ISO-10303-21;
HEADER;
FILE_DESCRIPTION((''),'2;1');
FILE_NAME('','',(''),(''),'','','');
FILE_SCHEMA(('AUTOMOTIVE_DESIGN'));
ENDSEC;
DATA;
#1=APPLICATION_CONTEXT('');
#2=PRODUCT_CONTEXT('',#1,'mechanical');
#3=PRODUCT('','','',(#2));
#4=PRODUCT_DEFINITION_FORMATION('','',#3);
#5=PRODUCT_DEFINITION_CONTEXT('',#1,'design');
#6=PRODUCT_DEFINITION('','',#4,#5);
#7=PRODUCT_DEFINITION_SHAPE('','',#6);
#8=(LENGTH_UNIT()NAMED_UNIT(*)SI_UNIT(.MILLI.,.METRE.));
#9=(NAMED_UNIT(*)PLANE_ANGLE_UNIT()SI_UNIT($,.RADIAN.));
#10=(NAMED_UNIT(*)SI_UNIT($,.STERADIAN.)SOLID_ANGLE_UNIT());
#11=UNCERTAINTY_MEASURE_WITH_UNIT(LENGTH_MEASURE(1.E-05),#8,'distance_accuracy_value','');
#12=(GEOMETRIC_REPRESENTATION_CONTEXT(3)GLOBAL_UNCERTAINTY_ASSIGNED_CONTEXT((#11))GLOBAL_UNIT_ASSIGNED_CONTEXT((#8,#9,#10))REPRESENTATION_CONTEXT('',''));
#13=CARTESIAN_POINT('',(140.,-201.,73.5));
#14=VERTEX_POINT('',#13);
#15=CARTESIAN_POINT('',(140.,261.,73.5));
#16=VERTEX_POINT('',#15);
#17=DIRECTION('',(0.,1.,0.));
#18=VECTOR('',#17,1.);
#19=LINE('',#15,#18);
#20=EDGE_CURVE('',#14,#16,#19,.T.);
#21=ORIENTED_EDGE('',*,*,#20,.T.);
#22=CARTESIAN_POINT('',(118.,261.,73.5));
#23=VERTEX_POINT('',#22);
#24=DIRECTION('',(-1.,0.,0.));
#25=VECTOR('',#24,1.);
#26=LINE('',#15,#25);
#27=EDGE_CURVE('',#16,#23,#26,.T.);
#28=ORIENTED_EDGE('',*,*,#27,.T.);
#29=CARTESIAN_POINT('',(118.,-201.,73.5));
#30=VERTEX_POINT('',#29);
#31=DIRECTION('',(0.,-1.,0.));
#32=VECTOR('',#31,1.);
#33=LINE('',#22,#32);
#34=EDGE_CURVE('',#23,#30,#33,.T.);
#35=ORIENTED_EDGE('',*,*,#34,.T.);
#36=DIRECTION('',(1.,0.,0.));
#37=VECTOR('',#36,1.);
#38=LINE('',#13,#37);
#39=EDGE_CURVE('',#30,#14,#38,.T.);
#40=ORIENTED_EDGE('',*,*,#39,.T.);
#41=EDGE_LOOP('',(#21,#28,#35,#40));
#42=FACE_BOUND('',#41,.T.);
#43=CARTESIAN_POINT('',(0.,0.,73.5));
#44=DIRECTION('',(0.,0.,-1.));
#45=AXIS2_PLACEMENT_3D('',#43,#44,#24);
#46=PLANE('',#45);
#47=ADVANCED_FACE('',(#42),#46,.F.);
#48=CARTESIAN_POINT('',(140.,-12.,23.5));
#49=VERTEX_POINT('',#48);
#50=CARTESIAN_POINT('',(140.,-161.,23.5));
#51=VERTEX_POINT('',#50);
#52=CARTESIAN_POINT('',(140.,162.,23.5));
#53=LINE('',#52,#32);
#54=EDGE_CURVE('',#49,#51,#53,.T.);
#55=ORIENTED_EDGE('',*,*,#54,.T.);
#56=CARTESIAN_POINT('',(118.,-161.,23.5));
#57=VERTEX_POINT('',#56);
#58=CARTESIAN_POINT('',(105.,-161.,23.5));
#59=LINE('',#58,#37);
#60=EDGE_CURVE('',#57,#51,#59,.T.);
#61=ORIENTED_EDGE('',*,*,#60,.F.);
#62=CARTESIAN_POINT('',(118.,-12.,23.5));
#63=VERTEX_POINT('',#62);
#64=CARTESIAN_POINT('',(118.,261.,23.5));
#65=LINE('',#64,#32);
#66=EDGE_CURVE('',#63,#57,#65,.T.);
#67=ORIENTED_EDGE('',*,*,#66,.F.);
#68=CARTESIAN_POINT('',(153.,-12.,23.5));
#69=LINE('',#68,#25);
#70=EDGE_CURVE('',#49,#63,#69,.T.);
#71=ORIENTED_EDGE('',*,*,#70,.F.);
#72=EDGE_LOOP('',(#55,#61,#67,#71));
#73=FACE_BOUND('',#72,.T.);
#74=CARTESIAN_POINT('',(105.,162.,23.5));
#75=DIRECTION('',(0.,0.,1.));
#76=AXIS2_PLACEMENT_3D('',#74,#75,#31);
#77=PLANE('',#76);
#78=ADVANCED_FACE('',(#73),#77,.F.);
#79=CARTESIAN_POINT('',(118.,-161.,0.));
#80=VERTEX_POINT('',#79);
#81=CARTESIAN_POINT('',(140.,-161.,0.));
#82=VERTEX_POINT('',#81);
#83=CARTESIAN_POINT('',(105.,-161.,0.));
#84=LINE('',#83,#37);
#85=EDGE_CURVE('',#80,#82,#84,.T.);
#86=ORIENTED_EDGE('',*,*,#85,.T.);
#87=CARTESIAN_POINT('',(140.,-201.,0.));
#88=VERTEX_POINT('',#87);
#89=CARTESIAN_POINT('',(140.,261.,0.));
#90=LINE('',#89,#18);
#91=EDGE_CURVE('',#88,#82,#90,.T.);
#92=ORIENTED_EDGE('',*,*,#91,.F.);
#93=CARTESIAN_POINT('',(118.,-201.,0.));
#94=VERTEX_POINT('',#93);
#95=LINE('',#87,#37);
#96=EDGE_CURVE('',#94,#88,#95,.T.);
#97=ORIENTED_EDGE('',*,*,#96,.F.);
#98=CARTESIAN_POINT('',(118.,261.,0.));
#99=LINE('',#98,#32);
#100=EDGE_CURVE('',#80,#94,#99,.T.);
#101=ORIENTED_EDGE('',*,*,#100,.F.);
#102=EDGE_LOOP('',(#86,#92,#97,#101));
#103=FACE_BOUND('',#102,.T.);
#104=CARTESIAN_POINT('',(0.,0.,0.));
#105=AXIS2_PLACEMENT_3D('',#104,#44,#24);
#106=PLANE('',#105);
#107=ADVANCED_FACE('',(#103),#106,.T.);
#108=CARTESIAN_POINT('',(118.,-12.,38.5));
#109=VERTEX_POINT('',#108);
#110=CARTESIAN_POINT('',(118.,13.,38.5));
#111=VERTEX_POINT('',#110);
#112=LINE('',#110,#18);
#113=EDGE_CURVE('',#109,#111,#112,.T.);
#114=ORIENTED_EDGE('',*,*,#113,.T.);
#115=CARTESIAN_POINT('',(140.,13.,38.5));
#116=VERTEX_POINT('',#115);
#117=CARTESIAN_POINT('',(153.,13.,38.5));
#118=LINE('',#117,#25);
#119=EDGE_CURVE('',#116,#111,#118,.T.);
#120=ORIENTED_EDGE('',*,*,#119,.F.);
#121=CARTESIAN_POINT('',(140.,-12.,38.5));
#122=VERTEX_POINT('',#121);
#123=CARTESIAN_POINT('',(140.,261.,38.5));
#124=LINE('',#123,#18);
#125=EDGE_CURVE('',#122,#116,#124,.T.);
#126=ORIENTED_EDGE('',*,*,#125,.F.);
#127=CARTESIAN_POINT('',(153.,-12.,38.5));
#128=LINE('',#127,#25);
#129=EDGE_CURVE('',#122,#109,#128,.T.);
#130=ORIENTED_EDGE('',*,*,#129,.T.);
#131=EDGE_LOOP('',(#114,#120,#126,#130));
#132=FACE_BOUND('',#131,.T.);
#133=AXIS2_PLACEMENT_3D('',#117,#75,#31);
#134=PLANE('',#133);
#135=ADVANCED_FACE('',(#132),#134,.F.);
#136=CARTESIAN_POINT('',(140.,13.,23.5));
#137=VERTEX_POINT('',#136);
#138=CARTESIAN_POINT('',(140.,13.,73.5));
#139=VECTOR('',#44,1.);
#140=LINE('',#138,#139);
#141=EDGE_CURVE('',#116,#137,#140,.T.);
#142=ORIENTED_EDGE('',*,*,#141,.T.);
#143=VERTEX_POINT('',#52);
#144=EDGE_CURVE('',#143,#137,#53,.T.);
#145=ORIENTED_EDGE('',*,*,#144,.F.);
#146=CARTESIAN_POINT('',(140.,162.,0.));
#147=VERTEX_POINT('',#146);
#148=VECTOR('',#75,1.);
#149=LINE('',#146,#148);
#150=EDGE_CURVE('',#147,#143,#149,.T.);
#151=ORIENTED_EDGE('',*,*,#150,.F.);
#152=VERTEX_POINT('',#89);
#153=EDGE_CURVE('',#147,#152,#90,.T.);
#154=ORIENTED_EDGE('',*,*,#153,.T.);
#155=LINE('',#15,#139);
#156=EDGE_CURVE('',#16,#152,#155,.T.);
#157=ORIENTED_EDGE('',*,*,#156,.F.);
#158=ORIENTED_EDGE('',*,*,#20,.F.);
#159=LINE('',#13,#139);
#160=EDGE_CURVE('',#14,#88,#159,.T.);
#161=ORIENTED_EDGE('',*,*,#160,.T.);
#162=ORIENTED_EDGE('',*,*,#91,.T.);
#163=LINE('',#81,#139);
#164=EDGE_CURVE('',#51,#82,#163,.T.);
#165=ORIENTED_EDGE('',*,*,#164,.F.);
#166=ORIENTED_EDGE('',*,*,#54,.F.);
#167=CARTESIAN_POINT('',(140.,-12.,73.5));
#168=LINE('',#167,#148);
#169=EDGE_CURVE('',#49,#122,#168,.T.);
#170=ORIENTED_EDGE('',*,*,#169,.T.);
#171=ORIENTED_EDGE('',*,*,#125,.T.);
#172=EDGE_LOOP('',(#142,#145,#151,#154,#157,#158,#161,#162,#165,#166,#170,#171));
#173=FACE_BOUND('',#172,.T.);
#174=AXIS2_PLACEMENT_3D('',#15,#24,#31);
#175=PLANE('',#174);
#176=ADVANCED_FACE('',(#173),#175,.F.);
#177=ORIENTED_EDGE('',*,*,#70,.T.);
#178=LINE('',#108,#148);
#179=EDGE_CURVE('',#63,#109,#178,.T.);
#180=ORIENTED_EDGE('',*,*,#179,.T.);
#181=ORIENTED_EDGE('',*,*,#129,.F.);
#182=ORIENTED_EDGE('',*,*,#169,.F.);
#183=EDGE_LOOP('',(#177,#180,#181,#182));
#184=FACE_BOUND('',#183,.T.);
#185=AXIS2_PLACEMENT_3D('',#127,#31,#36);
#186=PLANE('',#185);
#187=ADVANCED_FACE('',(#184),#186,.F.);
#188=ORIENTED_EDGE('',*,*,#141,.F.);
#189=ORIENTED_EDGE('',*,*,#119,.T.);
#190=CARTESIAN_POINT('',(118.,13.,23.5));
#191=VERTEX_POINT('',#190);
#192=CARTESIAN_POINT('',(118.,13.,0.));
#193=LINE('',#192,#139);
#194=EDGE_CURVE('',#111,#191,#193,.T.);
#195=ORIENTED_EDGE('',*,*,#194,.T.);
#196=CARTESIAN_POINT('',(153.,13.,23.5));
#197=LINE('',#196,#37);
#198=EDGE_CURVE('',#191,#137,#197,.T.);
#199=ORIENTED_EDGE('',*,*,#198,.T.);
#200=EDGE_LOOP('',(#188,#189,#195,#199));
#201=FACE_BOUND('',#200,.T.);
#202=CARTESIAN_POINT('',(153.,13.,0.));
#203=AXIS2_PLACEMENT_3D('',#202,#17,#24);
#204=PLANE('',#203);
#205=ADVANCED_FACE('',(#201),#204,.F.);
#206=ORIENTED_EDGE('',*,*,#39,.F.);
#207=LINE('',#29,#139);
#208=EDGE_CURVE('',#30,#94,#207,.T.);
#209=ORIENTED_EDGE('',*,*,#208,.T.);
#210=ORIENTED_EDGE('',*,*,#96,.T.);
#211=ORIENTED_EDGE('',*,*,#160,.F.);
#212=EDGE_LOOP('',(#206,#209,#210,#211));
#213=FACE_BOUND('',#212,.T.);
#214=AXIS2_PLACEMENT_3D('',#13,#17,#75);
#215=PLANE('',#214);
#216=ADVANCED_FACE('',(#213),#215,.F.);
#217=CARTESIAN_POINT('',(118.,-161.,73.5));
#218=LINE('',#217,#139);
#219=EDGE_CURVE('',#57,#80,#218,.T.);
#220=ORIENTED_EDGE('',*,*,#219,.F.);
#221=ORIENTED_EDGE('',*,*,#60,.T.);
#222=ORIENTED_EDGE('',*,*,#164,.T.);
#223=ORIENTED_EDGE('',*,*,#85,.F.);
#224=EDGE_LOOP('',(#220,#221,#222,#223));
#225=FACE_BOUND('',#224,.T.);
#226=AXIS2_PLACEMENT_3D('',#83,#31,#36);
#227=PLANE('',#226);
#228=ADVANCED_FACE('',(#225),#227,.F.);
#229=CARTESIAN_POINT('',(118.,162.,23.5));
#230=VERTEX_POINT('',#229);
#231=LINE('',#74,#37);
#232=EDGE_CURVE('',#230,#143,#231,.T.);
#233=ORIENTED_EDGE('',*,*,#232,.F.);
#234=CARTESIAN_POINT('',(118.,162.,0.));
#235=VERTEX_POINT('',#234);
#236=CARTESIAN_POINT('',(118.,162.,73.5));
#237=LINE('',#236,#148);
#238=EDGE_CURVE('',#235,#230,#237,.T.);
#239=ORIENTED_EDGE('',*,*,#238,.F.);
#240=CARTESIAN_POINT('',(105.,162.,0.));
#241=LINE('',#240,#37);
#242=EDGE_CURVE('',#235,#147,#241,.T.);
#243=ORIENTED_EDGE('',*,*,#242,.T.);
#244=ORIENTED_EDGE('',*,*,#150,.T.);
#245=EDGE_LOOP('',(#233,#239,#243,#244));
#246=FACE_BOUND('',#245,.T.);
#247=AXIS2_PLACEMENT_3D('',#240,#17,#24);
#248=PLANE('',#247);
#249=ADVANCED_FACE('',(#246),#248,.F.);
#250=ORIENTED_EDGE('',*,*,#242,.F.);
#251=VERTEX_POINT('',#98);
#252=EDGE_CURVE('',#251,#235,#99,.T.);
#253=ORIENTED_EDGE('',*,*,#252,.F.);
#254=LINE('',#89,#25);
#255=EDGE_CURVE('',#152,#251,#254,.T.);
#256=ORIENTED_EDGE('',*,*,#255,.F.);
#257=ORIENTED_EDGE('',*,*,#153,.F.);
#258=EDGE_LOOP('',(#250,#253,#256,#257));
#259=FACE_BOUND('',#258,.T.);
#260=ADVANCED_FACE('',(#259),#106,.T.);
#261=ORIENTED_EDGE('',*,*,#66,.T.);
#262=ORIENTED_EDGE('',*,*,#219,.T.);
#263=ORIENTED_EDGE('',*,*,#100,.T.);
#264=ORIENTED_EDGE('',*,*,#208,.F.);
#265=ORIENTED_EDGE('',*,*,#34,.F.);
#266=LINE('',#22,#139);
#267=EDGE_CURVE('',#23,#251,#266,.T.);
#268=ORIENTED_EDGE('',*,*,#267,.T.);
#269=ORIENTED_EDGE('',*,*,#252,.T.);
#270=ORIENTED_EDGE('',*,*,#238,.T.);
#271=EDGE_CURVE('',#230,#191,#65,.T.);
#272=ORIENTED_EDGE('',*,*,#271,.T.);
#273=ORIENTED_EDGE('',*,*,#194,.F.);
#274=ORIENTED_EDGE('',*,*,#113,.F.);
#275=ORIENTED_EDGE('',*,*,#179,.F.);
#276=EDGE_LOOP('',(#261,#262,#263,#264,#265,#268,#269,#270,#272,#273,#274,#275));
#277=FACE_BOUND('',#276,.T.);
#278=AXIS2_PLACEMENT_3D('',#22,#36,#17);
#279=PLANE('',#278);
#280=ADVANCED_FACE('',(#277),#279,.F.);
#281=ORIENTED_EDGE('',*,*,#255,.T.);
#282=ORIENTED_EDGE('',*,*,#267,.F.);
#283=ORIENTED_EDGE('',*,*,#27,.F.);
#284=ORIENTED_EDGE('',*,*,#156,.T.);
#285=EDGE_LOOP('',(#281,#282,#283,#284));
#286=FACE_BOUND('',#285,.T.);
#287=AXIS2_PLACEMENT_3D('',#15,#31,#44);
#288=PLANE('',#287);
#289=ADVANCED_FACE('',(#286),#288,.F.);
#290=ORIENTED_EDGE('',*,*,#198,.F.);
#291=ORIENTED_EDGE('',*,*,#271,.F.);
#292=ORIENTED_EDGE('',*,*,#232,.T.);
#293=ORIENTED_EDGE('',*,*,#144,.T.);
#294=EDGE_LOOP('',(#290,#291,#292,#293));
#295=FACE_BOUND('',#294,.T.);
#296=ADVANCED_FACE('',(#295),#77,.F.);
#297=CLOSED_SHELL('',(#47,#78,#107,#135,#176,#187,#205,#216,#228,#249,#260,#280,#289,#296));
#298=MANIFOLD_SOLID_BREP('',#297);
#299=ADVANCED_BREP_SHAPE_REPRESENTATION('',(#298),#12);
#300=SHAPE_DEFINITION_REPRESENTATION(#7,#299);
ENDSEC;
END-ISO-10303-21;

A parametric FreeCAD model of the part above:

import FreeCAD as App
import Part
import Sketcher
from FreeCAD import Vector
Q = App.Units.Quantity


def add_polygon(sketch, points):
    """Adds a closed chain of lines whose ends are joined by coincident constraints."""
    first, n = sketch.GeometryCount, len(points)
    for a, b in zip(points, points[1:] + points[:1]):
        sketch.addGeometry(Part.LineSegment(App.Vector(*a, 0), App.Vector(*b, 0)), False)
    for i in range(n):
        sketch.addConstraint(Sketcher.Constraint("Coincident", first + i, 2, first + (i + 1) % n, 1))

doc = App.newDocument("Part")
body = doc.addObject("PartDesign::Body", "Body")

sketch1 = body.newObject("Sketcher::SketchObject", "Sketch")
sketch1.AttachmentSupport = (doc.getObject("XY_Plane"), [""])
sketch1.MapMode = "FlatFace"
add_polygon(sketch1, [(118, 261), (118, -201), (140, -201), (140, 261)])
sketch1.addConstraint([
    Sketcher.Constraint("Vertical", 0),
    Sketcher.Constraint("Horizontal", 1),
    Sketcher.Constraint("Vertical", 2),
    Sketcher.Constraint("Horizontal", 3),
    Sketcher.Constraint("DistanceX", 1, 1, 1, 2, Q("22 mm")),
    Sketcher.Constraint("DistanceY", 0, 2, 0, 1, Q("462 mm")),
    Sketcher.Constraint("DistanceX", -1, 1, 0, 2, Q("118 mm")),
    Sketcher.Constraint("DistanceY", 0, 2, -1, 1, Q("201 mm")),
])
pad1 = body.newObject("PartDesign::Pad", "Pad")
pad1.Profile = sketch1
pad1.Length = 73.5

sketch2 = body.newObject("Sketcher::SketchObject", "Sketch001")
sketch2.AttachmentSupport = (doc.getObject("YZ_Plane"), [""])
sketch2.MapMode = "FlatFace"
sketch2.AttachmentOffset = App.Placement(Vector(0, 0, 118), App.Rotation())
add_polygon(sketch2, [(13, 0), (-12, 0), (-12, 38), (13, 38)])
sketch2.addConstraint([
    Sketcher.Constraint("Horizontal", 0),
    Sketcher.Constraint("Vertical", 1),
    Sketcher.Constraint("Horizontal", 2),
    Sketcher.Constraint("Vertical", 3),
    Sketcher.Constraint("PointOnObject", 0, 2, -1),
    Sketcher.Constraint("DistanceX", 0, 2, 0, 1, Q("25 mm")),
    Sketcher.Constraint("DistanceY", 1, 1, 1, 2, Q("38.5 mm")),
    Sketcher.Constraint("DistanceX", 0, 2, -1, 1, Q("12 mm")),
])
pocket1 = body.newObject("PartDesign::Pocket", "Pocket")
pocket1.Profile = sketch2
pocket1.Length = 35
pocket1.Reversed = True

sketch3 = body.newObject("Sketcher::SketchObject", "Sketch002")
sketch3.AttachmentSupport = (doc.getObject("YZ_Plane"), [""])
sketch3.MapMode = "FlatFace"
sketch3.AttachmentOffset = App.Placement(Vector(0, 0, 140), App.Rotation())
add_polygon(sketch3, [(162, 24), (-161, 24), (-161, 0), (162, 0)])
sketch3.addConstraint([
    Sketcher.Constraint("Horizontal", 0),
    Sketcher.Constraint("Vertical", 1),
    Sketcher.Constraint("Horizontal", 2),
    Sketcher.Constraint("Vertical", 3),
    Sketcher.Constraint("PointOnObject", 1, 2, -1),
    Sketcher.Constraint("DistanceX", 0, 2, 0, 1, Q("323 mm")),
    Sketcher.Constraint("DistanceY", 1, 2, 1, 1, Q("23.5 mm")),
    Sketcher.Constraint("DistanceX", 0, 2, -1, 1, Q("161 mm")),
])
pocket2 = body.newObject("PartDesign::Pocket", "Pocket001")
pocket2.Profile = sketch3
pocket2.Length = 35

doc.recompute()
